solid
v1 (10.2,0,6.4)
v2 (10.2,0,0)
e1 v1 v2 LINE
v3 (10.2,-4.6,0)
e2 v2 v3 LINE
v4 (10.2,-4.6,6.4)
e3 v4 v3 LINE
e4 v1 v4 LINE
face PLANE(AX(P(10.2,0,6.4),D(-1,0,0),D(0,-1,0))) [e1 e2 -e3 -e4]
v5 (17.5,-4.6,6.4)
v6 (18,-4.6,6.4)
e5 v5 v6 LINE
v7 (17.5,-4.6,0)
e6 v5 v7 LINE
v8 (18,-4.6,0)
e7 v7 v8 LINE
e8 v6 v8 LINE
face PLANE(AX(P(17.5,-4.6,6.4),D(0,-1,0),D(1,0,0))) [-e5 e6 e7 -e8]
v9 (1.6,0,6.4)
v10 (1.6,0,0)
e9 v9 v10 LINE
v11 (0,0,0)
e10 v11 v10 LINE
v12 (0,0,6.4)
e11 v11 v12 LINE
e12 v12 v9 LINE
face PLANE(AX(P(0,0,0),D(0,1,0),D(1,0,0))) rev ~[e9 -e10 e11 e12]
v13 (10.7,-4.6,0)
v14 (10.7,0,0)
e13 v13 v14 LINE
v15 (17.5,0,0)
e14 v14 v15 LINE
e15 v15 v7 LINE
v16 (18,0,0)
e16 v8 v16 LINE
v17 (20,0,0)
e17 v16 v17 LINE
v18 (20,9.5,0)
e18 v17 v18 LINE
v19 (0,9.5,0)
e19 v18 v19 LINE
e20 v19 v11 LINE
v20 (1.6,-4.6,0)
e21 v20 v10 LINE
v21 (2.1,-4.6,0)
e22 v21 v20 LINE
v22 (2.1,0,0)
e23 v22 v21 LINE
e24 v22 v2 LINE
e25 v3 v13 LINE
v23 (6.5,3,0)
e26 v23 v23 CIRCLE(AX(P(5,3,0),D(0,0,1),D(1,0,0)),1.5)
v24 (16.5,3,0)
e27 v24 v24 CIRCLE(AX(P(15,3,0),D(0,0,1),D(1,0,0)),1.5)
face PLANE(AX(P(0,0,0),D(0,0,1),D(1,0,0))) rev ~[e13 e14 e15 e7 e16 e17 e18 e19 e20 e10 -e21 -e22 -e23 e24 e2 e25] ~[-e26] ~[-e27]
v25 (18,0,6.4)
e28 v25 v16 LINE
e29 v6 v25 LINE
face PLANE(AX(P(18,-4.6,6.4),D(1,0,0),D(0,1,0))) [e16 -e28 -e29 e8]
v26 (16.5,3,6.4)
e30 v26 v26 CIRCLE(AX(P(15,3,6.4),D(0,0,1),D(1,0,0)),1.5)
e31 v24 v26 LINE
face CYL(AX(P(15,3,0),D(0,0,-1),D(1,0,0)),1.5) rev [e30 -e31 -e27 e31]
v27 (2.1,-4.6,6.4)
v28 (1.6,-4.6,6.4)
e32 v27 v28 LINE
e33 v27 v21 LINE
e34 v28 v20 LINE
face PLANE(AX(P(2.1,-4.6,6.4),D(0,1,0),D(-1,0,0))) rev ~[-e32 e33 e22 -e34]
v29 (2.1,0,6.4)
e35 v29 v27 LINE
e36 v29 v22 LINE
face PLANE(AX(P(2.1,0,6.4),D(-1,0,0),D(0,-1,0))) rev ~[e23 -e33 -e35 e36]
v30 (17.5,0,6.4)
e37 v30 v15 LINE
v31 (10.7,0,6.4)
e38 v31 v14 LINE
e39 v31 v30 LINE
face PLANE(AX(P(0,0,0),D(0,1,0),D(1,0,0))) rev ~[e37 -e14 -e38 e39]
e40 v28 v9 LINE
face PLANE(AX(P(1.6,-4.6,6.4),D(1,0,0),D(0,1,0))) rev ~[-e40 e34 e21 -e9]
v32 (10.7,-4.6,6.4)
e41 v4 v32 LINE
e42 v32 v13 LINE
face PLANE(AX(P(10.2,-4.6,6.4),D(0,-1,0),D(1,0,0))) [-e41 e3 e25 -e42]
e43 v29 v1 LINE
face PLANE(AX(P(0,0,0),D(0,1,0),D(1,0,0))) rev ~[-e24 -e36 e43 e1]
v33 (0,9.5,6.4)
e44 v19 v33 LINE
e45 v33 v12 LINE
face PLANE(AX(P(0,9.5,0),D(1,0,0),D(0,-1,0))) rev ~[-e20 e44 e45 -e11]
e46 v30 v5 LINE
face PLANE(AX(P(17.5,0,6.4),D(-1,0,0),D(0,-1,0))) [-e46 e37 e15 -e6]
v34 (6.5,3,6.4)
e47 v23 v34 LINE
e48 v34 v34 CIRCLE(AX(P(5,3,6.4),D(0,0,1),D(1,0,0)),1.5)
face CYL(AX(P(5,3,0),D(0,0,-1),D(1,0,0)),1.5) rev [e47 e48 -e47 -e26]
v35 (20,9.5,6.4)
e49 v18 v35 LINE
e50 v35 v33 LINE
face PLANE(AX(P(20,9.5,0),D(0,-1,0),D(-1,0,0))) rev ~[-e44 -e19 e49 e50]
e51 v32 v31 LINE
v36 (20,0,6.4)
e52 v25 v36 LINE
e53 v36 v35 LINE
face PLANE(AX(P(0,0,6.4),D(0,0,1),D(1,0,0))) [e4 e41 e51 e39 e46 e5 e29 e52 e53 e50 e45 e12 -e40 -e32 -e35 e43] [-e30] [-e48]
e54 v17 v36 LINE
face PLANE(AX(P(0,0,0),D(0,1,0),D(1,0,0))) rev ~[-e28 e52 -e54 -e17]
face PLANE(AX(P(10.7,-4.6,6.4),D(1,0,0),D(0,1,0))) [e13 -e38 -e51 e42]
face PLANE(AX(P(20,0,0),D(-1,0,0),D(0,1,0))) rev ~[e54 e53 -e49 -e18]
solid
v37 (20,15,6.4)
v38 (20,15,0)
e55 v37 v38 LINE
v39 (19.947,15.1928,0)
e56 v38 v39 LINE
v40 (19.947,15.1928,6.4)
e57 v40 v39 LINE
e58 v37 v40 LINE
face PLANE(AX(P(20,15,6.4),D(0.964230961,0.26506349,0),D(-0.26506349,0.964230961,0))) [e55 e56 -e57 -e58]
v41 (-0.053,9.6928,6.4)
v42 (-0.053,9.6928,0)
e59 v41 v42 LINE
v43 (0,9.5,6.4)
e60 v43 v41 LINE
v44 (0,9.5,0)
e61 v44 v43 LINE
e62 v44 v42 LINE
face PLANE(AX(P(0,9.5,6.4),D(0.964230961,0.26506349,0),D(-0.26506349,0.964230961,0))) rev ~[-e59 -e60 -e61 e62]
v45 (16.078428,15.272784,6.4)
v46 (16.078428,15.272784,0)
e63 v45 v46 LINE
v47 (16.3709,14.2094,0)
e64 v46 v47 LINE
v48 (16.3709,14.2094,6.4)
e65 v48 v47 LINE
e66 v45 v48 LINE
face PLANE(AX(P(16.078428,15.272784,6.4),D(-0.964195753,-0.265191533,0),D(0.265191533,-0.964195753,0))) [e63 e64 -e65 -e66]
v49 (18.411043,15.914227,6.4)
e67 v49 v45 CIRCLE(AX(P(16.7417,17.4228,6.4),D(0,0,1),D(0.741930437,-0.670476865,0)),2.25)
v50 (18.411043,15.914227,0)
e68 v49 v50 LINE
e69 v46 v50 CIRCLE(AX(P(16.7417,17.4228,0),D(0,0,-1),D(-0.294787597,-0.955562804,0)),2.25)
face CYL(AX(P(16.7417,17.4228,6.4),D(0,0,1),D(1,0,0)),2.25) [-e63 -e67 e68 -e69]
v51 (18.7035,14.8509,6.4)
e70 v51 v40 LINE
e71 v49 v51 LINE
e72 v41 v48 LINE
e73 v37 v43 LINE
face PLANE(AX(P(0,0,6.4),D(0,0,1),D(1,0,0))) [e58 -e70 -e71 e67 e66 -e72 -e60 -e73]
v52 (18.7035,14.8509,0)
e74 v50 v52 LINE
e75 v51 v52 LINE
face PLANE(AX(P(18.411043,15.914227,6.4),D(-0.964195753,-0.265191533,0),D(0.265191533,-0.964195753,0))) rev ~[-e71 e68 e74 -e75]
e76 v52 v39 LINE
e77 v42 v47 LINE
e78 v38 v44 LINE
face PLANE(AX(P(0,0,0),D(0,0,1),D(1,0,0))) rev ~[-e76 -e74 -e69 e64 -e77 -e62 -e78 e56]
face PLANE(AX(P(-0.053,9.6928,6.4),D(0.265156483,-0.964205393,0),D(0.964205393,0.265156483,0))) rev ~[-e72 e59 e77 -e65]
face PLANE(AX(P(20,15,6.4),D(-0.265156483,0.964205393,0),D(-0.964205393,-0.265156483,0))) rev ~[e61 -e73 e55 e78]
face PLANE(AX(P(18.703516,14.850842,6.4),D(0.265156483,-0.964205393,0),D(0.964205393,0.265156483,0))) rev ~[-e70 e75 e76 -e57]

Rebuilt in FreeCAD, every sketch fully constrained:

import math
import FreeCAD as App
import Part
import Sketcher

doc = App.newDocument("Part")
body = doc.addObject("PartDesign::Body", "Body")
body.AllowCompound = True

sketch1 = body.newObject("Sketcher::SketchObject", "Sketch")
sketch1.AttachmentSupport = (doc.getObject("XY_Plane"), [""])
sketch1.MapMode = "FlatFace"
sketch1.addGeometry([
    Part.LineSegment(App.Vector(0, 9.5, 0), App.Vector(0, 0, 0)),
    Part.LineSegment(App.Vector(0, 0, 0), App.Vector(20, 0, 0)),
    Part.LineSegment(App.Vector(20, 0, 0), App.Vector(20, 9.5, 0)),
    Part.LineSegment(App.Vector(20, 9.5, 0), App.Vector(0, 9.5, 0)),
    Part.Circle(App.Vector(5, 3, 0), App.Vector(0, 0, 1), 1.5),
    Part.Circle(App.Vector(15, 3, 0), App.Vector(0, 0, 1), 1.5),
], False)
sketch1.addConstraint([
    Sketcher.Constraint("Coincident", 0, 2, 1, 1),
    Sketcher.Constraint("Coincident", 1, 2, 2, 1),
    Sketcher.Constraint("Coincident", 2, 2, 3, 1),
    Sketcher.Constraint("Coincident", 3, 2, 0, 1),
    Sketcher.Constraint("Vertical", 0),
    Sketcher.Constraint("Horizontal", 1),
    Sketcher.Constraint("Vertical", 2),
    Sketcher.Constraint("Horizontal", 3),
    Sketcher.Constraint("Coincident", 0, 2, -1, 1),
    Sketcher.Constraint("Equal", 4, 5),
    Sketcher.Constraint("Horizontal", 4, 3, 5, 3),
    Sketcher.Constraint("Diameter", 4, 3.0),
    Sketcher.Constraint("DistanceX", 1, 1, 1, 2, 20.0),
    Sketcher.Constraint("DistanceY", 0, 2, 0, 1, 9.5),
    Sketcher.Constraint("DistanceX", -1, 1, 4, 3, 5.0),
    Sketcher.Constraint("DistanceY", -1, 1, 4, 3, 3.0),
    Sketcher.Constraint("DistanceX", 5, 3, 1, 2, 5.0),
])
pad1 = body.newObject("PartDesign::Pad", "Pad")
pad1.Profile = sketch1
pad1.Length = 6.4

sketch2 = body.newObject("Sketcher::SketchObject", "Sketch001")
sketch2.AttachmentSupport = (doc.getObject("XY_Plane"), [""])
sketch2.MapMode = "FlatFace"
sketch2.AttachmentOffset = App.Placement(App.Vector(0, 0, 6.4), App.Rotation())
sketch2.addGeometry([
    Part.LineSegment(App.Vector(0, 9.5, 0), App.Vector(20, 15, 0)),
    Part.LineSegment(App.Vector(20, 15, 0), App.Vector(19.95, 15.19, 0)),
    Part.LineSegment(App.Vector(19.95, 15.19, 0), App.Vector(18.7, 14.85, 0)),
    Part.LineSegment(App.Vector(18.7, 14.85, 0), App.Vector(18.41, 15.91, 0)),
    Part.ArcOfCircle(Part.Circle(App.Vector(16.74, 17.42, 0), App.Vector(0, 0, 1), 2.25), math.radians(-42), math.radians(253)),
    Part.LineSegment(App.Vector(16.08, 15.27, 0), App.Vector(16.37, 14.21, 0)),
    Part.LineSegment(App.Vector(16.37, 14.21, 0), App.Vector(-0.05, 9.69, 0)),
    Part.LineSegment(App.Vector(-0.05, 9.69, 0), App.Vector(0, 9.5, 0)),
], False)
sketch2.addConstraint([
    Sketcher.Constraint("Coincident", 0, 2, 1, 1),
    Sketcher.Constraint("Coincident", 1, 2, 2, 1),
    Sketcher.Constraint("Coincident", 2, 2, 3, 1),
    Sketcher.Constraint("Coincident", 3, 2, 4, 1),
    Sketcher.Constraint("Coincident", 4, 2, 5, 1),
    Sketcher.Constraint("Coincident", 5, 2, 6, 1),
    Sketcher.Constraint("Coincident", 6, 2, 7, 1),
    Sketcher.Constraint("Coincident", 7, 2, 0, 1),
    Sketcher.Constraint("PointOnObject", 7, 2, -2),
    Sketcher.Constraint("Perpendicular", 0, 1),
    Sketcher.Constraint("Perpendicular", 1, 2),
    Sketcher.Constraint("Perpendicular", 2, 3),
    Sketcher.Constraint("Parallel", 3, 5),
    Sketcher.Constraint("Perpendicular", 5, 6),
    Sketcher.Constraint("Perpendicular", 6, 7),
    Sketcher.Constraint("Equal", 3, 5),
    Sketcher.Constraint("Equal", 1, 7),
    Sketcher.Constraint("Radius", 4, 2.25),
    Sketcher.Constraint("Distance", 1, 0.2),
    Sketcher.Constraint("DistanceX", -1, 1, 0, 2, 20.0),
    Sketcher.Constraint("DistanceY", -1, 1, 0, 2, 15.0),
    Sketcher.Constraint("DistanceY", -1, 1, 7, 2, 9.5),
    Sketcher.Constraint("DistanceY", 1, 2, 4, 3, 2.23),
    Sketcher.Constraint("DistanceY", 4, 2, 4, 3, 2.15),
    Sketcher.Constraint("DistanceX", -1, 1, 3, 2, 18.411),
])
pad2 = body.newObject("PartDesign::Pad", "Pad001")
pad2.Profile = sketch2
pad2.Length = 6.4
pad2.Reversed = True

sketch3 = body.newObject("Sketcher::SketchObject", "Sketch002")
sketch3.AttachmentSupport = (doc.getObject("XY_Plane"), [""])
sketch3.MapMode = "FlatFace"
sketch3.AttachmentOffset = App.Placement(App.Vector(0, 0, 6.4), App.Rotation())
sketch3.addGeometry([
    Part.LineSegment(App.Vector(18, 0, 0), App.Vector(17.5, 0, 0)),
    Part.LineSegment(App.Vector(17.5, 0, 0), App.Vector(17.5, -4.6, 0)),
    Part.LineSegment(App.Vector(17.5, -4.6, 0), App.Vector(18, -4.6, 0)),
    Part.LineSegment(App.Vector(18, -4.6, 0), App.Vector(18, 0, 0)),
    Part.LineSegment(App.Vector(10.7, 0, 0), App.Vector(10.2, 0, 0)),
    Part.LineSegment(App.Vector(10.2, 0, 0), App.Vector(10.2, -4.6, 0)),
    Part.LineSegment(App.Vector(10.2, -4.6, 0), App.Vector(10.7, -4.6, 0)),
    Part.LineSegment(App.Vector(10.7, -4.6, 0), App.Vector(10.7, 0, 0)),
    Part.LineSegment(App.Vector(2.1, 0, 0), App.Vector(1.6, 0, 0)),
    Part.LineSegment(App.Vector(1.6, 0, 0), App.Vector(1.6, -4.6, 0)),
    Part.LineSegment(App.Vector(1.6, -4.6, 0), App.Vector(2.1, -4.6, 0)),
    Part.LineSegment(App.Vector(2.1, -4.6, 0), App.Vector(2.1, 0, 0)),
], False)
sketch3.addConstraint([
    Sketcher.Constraint("Coincident", 0, 2, 1, 1),
    Sketcher.Constraint("Coincident", 1, 2, 2, 1),
    Sketcher.Constraint("Coincident", 2, 2, 3, 1),
    Sketcher.Constraint("Coincident", 3, 2, 0, 1),
    Sketcher.Constraint("Coincident", 4, 2, 5, 1),
    Sketcher.Constraint("Coincident", 5, 2, 6, 1),
    Sketcher.Constraint("Coincident", 6, 2, 7, 1),
    Sketcher.Constraint("Coincident", 7, 2, 4, 1),
    Sketcher.Constraint("Coincident", 8, 2, 9, 1),
    Sketcher.Constraint("Coincident", 9, 2, 10, 1),
    Sketcher.Constraint("Coincident", 10, 2, 11, 1),
    Sketcher.Constraint("Coincident", 11, 2, 8, 1),
    Sketcher.Constraint("Horizontal", 0),
    Sketcher.Constraint("Vertical", 1),
    Sketcher.Constraint("Horizontal", 2),
    Sketcher.Constraint("Vertical", 3),
    Sketcher.Constraint("Horizontal", 4),
    Sketcher.Constraint("Vertical", 5),
    Sketcher.Constraint("Horizontal", 6),
    Sketcher.Constraint("Vertical", 7),
    Sketcher.Constraint("Horizontal", 8),
    Sketcher.Constraint("Vertical", 9),
    Sketcher.Constraint("Horizontal", 10),
    Sketcher.Constraint("Vertical", 11),
    Sketcher.Constraint("PointOnObject", 0, 2, -1),
    Sketcher.Constraint("PointOnObject", 4, 2, -1),
    Sketcher.Constraint("PointOnObject", 8, 2, -1),
    Sketcher.Constraint("Horizontal", 2, 2, 5, 2),
    Sketcher.Constraint("Horizontal", 6, 2, 9, 2),
    Sketcher.Constraint("Equal", 2, 4),
    Sketcher.Constraint("Equal", 6, 8),
    Sketcher.Constraint("DistanceX", 0, 2, 0, 1, 0.5),
    Sketcher.Constraint("DistanceY", 1, 2, 1, 1, 4.6),
    Sketcher.Constraint("DistanceX", -1, 1, 8, 2, 1.6),
    Sketcher.Constraint("DistanceX", 6, 2, 1, 2, 6.8),
    Sketcher.Constraint("DistanceX", 10, 2, 5, 2, 8.1),
])
pad3 = body.newObject("PartDesign::Pad", "Pad002")
pad3.Profile = sketch3
pad3.Length = 6.4
pad3.Reversed = True

doc.recompute()
